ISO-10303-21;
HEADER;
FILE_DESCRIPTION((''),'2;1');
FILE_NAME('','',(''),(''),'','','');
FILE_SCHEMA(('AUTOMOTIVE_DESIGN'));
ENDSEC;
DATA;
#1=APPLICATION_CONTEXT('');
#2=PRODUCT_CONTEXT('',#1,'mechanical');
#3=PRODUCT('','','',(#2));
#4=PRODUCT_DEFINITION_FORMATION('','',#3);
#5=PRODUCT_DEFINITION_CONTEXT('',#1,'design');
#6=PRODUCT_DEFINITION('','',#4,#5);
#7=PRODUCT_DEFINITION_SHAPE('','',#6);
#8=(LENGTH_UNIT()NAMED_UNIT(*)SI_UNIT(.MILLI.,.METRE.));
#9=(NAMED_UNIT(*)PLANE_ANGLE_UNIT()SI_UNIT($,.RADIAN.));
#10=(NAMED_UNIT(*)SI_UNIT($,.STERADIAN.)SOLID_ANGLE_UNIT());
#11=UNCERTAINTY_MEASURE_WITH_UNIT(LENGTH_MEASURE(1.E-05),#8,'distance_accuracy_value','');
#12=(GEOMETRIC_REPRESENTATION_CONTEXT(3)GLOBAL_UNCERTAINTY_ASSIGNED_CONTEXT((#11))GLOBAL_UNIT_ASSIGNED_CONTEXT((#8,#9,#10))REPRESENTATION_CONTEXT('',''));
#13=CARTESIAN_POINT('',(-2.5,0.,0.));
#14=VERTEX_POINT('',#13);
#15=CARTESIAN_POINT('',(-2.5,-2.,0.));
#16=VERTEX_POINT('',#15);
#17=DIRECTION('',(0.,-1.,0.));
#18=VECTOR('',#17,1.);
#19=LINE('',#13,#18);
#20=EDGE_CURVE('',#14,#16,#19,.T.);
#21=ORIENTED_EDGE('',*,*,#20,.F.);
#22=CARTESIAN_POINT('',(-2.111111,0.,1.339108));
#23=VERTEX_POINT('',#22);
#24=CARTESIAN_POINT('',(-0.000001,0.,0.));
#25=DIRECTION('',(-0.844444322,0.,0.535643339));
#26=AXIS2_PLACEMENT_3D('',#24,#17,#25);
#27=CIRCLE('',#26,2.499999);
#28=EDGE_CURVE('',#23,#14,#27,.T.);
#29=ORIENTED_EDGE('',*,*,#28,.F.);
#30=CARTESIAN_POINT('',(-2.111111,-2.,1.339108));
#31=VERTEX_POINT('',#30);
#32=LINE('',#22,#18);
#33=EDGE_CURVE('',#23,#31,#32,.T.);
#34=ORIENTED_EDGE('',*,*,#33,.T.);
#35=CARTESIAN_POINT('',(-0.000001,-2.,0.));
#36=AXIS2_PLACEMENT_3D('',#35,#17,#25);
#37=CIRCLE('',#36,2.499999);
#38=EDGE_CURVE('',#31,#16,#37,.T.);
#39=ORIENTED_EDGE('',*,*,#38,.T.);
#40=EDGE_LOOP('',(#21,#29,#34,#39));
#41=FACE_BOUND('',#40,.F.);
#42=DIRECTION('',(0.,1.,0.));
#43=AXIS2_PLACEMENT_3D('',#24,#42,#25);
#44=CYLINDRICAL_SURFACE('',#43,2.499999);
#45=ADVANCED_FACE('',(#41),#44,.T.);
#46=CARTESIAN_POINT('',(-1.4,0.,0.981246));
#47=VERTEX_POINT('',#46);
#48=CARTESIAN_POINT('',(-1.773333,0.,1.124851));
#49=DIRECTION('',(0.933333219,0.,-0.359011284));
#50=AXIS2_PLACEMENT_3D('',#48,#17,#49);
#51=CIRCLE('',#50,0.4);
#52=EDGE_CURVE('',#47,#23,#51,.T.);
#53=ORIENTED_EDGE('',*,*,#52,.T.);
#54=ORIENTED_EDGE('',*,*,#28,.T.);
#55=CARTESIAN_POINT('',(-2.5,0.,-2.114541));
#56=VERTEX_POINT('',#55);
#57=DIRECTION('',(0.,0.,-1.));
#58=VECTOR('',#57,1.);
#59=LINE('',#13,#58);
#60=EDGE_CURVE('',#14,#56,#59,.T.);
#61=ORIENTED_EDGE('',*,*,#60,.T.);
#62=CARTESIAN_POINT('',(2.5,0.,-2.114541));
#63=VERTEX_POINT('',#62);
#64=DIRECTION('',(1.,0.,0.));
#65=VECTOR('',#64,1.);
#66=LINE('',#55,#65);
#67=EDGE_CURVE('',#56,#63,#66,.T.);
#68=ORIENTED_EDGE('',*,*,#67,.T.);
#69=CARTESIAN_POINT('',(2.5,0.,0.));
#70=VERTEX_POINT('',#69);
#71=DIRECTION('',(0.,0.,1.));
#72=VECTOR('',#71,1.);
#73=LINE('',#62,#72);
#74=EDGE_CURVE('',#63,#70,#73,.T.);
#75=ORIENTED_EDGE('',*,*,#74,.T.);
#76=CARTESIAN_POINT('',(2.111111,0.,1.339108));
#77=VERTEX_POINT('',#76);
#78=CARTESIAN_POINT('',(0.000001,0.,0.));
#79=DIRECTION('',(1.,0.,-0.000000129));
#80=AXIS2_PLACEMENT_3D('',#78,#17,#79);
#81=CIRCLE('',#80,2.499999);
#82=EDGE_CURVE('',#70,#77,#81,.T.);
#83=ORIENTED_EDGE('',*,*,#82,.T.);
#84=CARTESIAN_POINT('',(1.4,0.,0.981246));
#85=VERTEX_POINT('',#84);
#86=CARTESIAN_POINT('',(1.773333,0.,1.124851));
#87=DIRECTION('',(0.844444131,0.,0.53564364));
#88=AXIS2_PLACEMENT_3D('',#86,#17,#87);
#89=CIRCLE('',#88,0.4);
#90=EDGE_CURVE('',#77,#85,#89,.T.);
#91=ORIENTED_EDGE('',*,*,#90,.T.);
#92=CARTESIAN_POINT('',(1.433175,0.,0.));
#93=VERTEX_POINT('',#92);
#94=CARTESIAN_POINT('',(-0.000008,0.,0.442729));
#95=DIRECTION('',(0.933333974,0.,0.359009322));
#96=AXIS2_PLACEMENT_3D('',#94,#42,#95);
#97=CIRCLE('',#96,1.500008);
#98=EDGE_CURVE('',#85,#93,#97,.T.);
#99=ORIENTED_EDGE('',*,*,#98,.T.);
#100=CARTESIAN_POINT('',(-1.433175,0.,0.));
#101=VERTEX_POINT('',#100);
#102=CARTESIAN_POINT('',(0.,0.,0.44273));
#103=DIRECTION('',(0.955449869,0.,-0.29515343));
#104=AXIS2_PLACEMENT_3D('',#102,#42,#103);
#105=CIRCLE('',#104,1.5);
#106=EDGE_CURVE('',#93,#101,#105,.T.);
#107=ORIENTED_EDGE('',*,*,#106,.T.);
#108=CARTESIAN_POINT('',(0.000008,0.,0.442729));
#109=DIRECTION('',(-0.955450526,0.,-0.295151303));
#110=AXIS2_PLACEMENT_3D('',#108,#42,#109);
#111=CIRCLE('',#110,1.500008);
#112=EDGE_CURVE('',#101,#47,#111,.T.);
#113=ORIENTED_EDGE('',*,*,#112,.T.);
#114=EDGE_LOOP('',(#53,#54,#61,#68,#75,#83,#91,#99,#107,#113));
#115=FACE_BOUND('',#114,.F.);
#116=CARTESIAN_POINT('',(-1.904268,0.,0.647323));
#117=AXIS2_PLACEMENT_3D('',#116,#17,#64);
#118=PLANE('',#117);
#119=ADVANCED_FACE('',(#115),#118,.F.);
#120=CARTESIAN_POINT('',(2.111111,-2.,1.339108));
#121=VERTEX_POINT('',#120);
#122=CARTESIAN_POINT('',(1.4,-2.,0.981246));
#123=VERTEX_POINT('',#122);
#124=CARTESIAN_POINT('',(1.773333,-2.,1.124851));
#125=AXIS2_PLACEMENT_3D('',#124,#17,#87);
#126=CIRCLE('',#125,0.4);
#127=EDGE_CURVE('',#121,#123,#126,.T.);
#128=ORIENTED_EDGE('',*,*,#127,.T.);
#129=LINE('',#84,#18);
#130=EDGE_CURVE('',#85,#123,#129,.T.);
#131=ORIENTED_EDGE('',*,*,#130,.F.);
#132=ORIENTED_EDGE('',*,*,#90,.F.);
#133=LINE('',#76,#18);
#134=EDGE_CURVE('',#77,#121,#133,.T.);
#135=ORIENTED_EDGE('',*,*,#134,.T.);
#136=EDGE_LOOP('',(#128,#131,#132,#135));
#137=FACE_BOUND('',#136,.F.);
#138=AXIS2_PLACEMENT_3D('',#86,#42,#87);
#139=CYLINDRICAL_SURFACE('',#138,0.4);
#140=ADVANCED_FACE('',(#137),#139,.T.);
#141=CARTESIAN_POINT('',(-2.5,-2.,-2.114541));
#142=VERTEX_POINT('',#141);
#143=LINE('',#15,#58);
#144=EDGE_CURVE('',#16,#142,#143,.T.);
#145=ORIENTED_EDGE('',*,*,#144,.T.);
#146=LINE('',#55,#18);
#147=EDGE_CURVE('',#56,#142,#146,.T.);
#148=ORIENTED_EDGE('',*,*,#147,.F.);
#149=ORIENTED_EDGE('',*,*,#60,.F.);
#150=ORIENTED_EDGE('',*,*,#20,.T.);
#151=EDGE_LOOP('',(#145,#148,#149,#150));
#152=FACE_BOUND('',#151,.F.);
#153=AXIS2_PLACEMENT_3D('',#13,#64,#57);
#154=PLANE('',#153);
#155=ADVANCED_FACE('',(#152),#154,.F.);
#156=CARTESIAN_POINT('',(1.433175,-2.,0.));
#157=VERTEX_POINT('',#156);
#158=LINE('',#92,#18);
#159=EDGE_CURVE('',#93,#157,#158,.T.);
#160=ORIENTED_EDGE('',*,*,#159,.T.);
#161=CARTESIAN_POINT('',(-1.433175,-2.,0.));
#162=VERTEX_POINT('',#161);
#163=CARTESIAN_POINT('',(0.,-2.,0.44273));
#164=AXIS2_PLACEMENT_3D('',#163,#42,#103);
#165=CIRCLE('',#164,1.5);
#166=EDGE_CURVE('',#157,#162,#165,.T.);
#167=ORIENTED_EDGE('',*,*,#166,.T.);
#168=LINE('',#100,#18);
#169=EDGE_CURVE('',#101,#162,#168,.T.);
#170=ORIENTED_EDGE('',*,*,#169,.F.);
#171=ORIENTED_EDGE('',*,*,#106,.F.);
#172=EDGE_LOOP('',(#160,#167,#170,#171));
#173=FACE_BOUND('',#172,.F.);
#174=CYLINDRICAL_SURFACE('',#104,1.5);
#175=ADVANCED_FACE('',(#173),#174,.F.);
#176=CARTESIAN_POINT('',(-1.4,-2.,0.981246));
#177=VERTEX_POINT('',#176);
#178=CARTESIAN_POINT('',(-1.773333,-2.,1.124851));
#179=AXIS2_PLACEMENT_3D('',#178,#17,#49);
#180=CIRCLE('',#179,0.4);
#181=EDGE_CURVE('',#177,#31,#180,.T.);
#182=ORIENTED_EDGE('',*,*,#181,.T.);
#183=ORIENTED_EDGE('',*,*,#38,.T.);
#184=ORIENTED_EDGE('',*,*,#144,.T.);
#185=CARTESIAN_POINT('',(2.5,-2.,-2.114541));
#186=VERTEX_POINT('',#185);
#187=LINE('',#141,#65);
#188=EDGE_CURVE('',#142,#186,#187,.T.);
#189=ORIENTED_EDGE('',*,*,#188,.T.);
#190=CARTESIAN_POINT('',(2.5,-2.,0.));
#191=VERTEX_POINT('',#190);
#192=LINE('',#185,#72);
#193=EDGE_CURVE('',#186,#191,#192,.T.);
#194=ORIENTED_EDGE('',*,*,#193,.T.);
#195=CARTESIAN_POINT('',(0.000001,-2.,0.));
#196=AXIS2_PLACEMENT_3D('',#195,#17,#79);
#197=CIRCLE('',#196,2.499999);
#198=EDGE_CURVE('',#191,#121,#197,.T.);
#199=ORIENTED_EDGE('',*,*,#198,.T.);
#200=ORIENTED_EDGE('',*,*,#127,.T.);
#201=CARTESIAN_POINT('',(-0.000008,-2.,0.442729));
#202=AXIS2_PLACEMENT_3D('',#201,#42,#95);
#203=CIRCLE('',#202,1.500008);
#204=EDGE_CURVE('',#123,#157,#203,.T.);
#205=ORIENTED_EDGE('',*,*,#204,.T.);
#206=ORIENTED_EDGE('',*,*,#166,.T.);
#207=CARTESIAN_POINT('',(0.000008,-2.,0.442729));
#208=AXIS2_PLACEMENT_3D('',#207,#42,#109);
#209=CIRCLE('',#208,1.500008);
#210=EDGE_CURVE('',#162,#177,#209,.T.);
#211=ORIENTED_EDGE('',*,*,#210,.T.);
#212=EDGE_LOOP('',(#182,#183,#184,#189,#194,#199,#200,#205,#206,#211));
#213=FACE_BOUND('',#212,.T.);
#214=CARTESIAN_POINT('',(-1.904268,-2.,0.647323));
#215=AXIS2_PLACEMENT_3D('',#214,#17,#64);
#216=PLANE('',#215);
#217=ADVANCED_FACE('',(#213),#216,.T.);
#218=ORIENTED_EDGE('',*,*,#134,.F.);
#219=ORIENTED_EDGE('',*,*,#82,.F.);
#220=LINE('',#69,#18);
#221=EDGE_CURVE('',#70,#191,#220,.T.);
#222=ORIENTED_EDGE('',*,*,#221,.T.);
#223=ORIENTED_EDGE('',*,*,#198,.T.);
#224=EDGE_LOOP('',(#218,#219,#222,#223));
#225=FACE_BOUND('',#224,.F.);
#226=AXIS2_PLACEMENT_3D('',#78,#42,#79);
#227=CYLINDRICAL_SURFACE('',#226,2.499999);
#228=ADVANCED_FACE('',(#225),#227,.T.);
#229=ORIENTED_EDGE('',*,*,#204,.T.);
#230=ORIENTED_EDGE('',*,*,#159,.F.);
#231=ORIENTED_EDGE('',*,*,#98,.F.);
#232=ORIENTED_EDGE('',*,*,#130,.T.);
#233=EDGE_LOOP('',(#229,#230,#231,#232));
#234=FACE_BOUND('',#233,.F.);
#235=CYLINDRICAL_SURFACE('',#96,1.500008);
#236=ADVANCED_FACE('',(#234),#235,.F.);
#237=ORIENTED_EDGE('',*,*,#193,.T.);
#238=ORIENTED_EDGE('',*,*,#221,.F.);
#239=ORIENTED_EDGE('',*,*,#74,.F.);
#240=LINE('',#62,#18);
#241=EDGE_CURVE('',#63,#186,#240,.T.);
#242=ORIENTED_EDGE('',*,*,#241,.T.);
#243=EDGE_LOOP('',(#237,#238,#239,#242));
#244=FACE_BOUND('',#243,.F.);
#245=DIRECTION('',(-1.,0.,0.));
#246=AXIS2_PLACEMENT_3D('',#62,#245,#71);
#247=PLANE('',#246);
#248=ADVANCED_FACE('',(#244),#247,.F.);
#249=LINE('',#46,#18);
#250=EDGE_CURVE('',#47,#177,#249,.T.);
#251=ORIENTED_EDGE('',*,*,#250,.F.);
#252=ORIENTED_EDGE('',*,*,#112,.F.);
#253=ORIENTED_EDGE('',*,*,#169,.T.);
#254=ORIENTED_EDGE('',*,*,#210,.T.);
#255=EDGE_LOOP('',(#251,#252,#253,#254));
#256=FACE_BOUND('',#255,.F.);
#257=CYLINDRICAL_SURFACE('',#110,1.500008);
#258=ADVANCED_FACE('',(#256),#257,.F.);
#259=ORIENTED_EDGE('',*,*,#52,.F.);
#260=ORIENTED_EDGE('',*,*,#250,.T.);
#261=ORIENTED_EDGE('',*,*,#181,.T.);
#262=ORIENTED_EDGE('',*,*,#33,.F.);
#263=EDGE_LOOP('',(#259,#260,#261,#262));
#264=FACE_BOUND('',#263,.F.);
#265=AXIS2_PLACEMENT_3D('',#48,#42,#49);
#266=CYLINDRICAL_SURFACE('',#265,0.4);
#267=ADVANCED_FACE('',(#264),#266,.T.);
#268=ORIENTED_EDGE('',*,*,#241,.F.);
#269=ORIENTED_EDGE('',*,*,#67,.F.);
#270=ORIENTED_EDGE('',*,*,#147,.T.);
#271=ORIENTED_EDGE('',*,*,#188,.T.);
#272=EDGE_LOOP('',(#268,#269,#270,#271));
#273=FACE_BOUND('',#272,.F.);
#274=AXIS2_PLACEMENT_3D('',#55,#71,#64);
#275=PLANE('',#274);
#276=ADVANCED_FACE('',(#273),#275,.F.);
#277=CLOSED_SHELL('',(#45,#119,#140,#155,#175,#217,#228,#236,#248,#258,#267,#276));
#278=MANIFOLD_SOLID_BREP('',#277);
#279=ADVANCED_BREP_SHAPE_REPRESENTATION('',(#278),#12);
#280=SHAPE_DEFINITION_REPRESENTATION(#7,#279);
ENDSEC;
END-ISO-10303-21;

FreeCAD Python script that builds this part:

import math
import FreeCAD as App
import Part
import Sketcher

V = App.Vector
Q = App.Units.Quantity

doc = App.newDocument("Part")
body = doc.addObject("PartDesign::Body", "Body")

sketch1 = doc.addObject("Sketcher::SketchObject", "Sketch")
body.addObject(sketch1)
sketch1.AttachmentSupport = (doc.XZ_Plane, [""])
sketch1.MapMode = "FlatFace"
sketch1.addGeometry(Part.ArcOfCircle(Part.Circle(V(-1.773333, 1.124851, 0), V(0, 0, 1), 0.4), math.radians(-21.039488), math.radians(147.612428)), False)
sketch1.addGeometry(Part.ArcOfCircle(Part.Circle(V(-0.000001, 0, 0), V(0, 0, 1), 2.499999), math.radians(147.612448), math.radians(180.000007)), False)
sketch1.addGeometry(Part.LineSegment(V(-2.5, 0, 0), V(-2.5, -2.114541, 0)), False)
sketch1.addGeometry(Part.LineSegment(V(-2.5, -2.114541, 0), V(2.5, -2.114541, 0)), False)
sketch1.addGeometry(Part.LineSegment(V(2.5, -2.114541, 0), V(2.5, 0, 0)), False)
sketch1.addGeometry(Part.ArcOfCircle(Part.Circle(V(0.000001, 0, 0), V(0, 0, 1), 2.499999), math.radians(-0.000007), math.radians(32.387552)), False)
sketch1.addGeometry(Part.ArcOfCircle(Part.Circle(V(1.773333, 1.124851, 0), V(0, 0, 1), 0.4), math.radians(32.387572), math.radians(201.039488)), False)
sketch1.addGeometry(Part.ArcOfCircle(Part.Circle(V(-0.000008, 0.442729, 0), V(0, 0, 1), 1.500008), math.radians(-17.16661), math.radians(21.039368)), False)
sketch1.addGeometry(Part.ArcOfCircle(Part.Circle(V(0, 0.44273, 0), V(0, 0, 1), 1.5), math.radians(-162.833262), math.radians(-17.166738)), False)
sketch1.addGeometry(Part.ArcOfCircle(Part.Circle(V(0.000008, 0.442729, 0), V(0, 0, 1), 1.500008), math.radians(158.960632), math.radians(197.16661)), False)
sketch1.addConstraint(Sketcher.Constraint("Tangent", 0, 2, 1, 1))
sketch1.addConstraint(Sketcher.Constraint("Tangent", 1, 2, 2, 1))
sketch1.addConstraint(Sketcher.Constraint("Coincident", 2, 2, 3, 1))
sketch1.addConstraint(Sketcher.Constraint("Coincident", 3, 2, 4, 1))
sketch1.addConstraint(Sketcher.Constraint("Tangent", 4, 2, 5, 1))
sketch1.addConstraint(Sketcher.Constraint("Tangent", 5, 2, 6, 1))
sketch1.addConstraint(Sketcher.Constraint("Coincident", 6, 2, 7, 2))
sketch1.addConstraint(Sketcher.Constraint("Coincident", 7, 1, 8, 2))
sketch1.addConstraint(Sketcher.Constraint("Coincident", 8, 1, 9, 2))
sketch1.addConstraint(Sketcher.Constraint("Coincident", 9, 1, 0, 1))
sketch1.addConstraint(Sketcher.Constraint("Vertical", 2))
sketch1.addConstraint(Sketcher.Constraint("Horizontal", 3))
sketch1.addConstraint(Sketcher.Constraint("Vertical", 4))
sketch1.addConstraint(Sketcher.Constraint("Coincident", 1, 3, -1, 1))
sketch1.addConstraint(Sketcher.Constraint("Coincident", 5, 3, -1, 1))
sketch1.addConstraint(Sketcher.Constraint("Coincident", 8, 3, 7, 3))
sketch1.addConstraint(Sketcher.Constraint("Coincident", 9, 3, 8, 3))
sketch1.addConstraint(Sketcher.Constraint("Equal", 1, 5))
sketch1.addConstraint(Sketcher.Constraint("Equal", 0, 6))
sketch1.addConstraint(Sketcher.Constraint("Symmetric", 7, 1, 8, 1, -1, 1))
sketch1.addConstraint(Sketcher.Constraint("Symmetric", 6, 2, 9, 1, -2))
sketch1.addConstraint(Sketcher.Constraint("Radius", 0, Q("0.4 mm")))
sketch1.addConstraint(Sketcher.Constraint("Radius", 1, Q("2.499999 mm")))
sketch1.addConstraint(Sketcher.Constraint("Radius", 8, Q("1.5 mm")))
sketch1.addConstraint(Sketcher.Constraint("DistanceX", -1, 1, 6, 2, Q("1.4 mm")))
sketch1.addConstraint(Sketcher.Constraint("DistanceY", 2, 2, 2, 1, Q("2.114541 mm")))
sketch1.addConstraint(Sketcher.Constraint("DistanceY", -1, 1, 0, 3, Q("1.124851 mm")))
pad1 = doc.addObject("PartDesign::Pad", "Pad")
body.addObject(pad1)
pad1.Profile = sketch1
pad1.Length = 2

doc.recompute()
